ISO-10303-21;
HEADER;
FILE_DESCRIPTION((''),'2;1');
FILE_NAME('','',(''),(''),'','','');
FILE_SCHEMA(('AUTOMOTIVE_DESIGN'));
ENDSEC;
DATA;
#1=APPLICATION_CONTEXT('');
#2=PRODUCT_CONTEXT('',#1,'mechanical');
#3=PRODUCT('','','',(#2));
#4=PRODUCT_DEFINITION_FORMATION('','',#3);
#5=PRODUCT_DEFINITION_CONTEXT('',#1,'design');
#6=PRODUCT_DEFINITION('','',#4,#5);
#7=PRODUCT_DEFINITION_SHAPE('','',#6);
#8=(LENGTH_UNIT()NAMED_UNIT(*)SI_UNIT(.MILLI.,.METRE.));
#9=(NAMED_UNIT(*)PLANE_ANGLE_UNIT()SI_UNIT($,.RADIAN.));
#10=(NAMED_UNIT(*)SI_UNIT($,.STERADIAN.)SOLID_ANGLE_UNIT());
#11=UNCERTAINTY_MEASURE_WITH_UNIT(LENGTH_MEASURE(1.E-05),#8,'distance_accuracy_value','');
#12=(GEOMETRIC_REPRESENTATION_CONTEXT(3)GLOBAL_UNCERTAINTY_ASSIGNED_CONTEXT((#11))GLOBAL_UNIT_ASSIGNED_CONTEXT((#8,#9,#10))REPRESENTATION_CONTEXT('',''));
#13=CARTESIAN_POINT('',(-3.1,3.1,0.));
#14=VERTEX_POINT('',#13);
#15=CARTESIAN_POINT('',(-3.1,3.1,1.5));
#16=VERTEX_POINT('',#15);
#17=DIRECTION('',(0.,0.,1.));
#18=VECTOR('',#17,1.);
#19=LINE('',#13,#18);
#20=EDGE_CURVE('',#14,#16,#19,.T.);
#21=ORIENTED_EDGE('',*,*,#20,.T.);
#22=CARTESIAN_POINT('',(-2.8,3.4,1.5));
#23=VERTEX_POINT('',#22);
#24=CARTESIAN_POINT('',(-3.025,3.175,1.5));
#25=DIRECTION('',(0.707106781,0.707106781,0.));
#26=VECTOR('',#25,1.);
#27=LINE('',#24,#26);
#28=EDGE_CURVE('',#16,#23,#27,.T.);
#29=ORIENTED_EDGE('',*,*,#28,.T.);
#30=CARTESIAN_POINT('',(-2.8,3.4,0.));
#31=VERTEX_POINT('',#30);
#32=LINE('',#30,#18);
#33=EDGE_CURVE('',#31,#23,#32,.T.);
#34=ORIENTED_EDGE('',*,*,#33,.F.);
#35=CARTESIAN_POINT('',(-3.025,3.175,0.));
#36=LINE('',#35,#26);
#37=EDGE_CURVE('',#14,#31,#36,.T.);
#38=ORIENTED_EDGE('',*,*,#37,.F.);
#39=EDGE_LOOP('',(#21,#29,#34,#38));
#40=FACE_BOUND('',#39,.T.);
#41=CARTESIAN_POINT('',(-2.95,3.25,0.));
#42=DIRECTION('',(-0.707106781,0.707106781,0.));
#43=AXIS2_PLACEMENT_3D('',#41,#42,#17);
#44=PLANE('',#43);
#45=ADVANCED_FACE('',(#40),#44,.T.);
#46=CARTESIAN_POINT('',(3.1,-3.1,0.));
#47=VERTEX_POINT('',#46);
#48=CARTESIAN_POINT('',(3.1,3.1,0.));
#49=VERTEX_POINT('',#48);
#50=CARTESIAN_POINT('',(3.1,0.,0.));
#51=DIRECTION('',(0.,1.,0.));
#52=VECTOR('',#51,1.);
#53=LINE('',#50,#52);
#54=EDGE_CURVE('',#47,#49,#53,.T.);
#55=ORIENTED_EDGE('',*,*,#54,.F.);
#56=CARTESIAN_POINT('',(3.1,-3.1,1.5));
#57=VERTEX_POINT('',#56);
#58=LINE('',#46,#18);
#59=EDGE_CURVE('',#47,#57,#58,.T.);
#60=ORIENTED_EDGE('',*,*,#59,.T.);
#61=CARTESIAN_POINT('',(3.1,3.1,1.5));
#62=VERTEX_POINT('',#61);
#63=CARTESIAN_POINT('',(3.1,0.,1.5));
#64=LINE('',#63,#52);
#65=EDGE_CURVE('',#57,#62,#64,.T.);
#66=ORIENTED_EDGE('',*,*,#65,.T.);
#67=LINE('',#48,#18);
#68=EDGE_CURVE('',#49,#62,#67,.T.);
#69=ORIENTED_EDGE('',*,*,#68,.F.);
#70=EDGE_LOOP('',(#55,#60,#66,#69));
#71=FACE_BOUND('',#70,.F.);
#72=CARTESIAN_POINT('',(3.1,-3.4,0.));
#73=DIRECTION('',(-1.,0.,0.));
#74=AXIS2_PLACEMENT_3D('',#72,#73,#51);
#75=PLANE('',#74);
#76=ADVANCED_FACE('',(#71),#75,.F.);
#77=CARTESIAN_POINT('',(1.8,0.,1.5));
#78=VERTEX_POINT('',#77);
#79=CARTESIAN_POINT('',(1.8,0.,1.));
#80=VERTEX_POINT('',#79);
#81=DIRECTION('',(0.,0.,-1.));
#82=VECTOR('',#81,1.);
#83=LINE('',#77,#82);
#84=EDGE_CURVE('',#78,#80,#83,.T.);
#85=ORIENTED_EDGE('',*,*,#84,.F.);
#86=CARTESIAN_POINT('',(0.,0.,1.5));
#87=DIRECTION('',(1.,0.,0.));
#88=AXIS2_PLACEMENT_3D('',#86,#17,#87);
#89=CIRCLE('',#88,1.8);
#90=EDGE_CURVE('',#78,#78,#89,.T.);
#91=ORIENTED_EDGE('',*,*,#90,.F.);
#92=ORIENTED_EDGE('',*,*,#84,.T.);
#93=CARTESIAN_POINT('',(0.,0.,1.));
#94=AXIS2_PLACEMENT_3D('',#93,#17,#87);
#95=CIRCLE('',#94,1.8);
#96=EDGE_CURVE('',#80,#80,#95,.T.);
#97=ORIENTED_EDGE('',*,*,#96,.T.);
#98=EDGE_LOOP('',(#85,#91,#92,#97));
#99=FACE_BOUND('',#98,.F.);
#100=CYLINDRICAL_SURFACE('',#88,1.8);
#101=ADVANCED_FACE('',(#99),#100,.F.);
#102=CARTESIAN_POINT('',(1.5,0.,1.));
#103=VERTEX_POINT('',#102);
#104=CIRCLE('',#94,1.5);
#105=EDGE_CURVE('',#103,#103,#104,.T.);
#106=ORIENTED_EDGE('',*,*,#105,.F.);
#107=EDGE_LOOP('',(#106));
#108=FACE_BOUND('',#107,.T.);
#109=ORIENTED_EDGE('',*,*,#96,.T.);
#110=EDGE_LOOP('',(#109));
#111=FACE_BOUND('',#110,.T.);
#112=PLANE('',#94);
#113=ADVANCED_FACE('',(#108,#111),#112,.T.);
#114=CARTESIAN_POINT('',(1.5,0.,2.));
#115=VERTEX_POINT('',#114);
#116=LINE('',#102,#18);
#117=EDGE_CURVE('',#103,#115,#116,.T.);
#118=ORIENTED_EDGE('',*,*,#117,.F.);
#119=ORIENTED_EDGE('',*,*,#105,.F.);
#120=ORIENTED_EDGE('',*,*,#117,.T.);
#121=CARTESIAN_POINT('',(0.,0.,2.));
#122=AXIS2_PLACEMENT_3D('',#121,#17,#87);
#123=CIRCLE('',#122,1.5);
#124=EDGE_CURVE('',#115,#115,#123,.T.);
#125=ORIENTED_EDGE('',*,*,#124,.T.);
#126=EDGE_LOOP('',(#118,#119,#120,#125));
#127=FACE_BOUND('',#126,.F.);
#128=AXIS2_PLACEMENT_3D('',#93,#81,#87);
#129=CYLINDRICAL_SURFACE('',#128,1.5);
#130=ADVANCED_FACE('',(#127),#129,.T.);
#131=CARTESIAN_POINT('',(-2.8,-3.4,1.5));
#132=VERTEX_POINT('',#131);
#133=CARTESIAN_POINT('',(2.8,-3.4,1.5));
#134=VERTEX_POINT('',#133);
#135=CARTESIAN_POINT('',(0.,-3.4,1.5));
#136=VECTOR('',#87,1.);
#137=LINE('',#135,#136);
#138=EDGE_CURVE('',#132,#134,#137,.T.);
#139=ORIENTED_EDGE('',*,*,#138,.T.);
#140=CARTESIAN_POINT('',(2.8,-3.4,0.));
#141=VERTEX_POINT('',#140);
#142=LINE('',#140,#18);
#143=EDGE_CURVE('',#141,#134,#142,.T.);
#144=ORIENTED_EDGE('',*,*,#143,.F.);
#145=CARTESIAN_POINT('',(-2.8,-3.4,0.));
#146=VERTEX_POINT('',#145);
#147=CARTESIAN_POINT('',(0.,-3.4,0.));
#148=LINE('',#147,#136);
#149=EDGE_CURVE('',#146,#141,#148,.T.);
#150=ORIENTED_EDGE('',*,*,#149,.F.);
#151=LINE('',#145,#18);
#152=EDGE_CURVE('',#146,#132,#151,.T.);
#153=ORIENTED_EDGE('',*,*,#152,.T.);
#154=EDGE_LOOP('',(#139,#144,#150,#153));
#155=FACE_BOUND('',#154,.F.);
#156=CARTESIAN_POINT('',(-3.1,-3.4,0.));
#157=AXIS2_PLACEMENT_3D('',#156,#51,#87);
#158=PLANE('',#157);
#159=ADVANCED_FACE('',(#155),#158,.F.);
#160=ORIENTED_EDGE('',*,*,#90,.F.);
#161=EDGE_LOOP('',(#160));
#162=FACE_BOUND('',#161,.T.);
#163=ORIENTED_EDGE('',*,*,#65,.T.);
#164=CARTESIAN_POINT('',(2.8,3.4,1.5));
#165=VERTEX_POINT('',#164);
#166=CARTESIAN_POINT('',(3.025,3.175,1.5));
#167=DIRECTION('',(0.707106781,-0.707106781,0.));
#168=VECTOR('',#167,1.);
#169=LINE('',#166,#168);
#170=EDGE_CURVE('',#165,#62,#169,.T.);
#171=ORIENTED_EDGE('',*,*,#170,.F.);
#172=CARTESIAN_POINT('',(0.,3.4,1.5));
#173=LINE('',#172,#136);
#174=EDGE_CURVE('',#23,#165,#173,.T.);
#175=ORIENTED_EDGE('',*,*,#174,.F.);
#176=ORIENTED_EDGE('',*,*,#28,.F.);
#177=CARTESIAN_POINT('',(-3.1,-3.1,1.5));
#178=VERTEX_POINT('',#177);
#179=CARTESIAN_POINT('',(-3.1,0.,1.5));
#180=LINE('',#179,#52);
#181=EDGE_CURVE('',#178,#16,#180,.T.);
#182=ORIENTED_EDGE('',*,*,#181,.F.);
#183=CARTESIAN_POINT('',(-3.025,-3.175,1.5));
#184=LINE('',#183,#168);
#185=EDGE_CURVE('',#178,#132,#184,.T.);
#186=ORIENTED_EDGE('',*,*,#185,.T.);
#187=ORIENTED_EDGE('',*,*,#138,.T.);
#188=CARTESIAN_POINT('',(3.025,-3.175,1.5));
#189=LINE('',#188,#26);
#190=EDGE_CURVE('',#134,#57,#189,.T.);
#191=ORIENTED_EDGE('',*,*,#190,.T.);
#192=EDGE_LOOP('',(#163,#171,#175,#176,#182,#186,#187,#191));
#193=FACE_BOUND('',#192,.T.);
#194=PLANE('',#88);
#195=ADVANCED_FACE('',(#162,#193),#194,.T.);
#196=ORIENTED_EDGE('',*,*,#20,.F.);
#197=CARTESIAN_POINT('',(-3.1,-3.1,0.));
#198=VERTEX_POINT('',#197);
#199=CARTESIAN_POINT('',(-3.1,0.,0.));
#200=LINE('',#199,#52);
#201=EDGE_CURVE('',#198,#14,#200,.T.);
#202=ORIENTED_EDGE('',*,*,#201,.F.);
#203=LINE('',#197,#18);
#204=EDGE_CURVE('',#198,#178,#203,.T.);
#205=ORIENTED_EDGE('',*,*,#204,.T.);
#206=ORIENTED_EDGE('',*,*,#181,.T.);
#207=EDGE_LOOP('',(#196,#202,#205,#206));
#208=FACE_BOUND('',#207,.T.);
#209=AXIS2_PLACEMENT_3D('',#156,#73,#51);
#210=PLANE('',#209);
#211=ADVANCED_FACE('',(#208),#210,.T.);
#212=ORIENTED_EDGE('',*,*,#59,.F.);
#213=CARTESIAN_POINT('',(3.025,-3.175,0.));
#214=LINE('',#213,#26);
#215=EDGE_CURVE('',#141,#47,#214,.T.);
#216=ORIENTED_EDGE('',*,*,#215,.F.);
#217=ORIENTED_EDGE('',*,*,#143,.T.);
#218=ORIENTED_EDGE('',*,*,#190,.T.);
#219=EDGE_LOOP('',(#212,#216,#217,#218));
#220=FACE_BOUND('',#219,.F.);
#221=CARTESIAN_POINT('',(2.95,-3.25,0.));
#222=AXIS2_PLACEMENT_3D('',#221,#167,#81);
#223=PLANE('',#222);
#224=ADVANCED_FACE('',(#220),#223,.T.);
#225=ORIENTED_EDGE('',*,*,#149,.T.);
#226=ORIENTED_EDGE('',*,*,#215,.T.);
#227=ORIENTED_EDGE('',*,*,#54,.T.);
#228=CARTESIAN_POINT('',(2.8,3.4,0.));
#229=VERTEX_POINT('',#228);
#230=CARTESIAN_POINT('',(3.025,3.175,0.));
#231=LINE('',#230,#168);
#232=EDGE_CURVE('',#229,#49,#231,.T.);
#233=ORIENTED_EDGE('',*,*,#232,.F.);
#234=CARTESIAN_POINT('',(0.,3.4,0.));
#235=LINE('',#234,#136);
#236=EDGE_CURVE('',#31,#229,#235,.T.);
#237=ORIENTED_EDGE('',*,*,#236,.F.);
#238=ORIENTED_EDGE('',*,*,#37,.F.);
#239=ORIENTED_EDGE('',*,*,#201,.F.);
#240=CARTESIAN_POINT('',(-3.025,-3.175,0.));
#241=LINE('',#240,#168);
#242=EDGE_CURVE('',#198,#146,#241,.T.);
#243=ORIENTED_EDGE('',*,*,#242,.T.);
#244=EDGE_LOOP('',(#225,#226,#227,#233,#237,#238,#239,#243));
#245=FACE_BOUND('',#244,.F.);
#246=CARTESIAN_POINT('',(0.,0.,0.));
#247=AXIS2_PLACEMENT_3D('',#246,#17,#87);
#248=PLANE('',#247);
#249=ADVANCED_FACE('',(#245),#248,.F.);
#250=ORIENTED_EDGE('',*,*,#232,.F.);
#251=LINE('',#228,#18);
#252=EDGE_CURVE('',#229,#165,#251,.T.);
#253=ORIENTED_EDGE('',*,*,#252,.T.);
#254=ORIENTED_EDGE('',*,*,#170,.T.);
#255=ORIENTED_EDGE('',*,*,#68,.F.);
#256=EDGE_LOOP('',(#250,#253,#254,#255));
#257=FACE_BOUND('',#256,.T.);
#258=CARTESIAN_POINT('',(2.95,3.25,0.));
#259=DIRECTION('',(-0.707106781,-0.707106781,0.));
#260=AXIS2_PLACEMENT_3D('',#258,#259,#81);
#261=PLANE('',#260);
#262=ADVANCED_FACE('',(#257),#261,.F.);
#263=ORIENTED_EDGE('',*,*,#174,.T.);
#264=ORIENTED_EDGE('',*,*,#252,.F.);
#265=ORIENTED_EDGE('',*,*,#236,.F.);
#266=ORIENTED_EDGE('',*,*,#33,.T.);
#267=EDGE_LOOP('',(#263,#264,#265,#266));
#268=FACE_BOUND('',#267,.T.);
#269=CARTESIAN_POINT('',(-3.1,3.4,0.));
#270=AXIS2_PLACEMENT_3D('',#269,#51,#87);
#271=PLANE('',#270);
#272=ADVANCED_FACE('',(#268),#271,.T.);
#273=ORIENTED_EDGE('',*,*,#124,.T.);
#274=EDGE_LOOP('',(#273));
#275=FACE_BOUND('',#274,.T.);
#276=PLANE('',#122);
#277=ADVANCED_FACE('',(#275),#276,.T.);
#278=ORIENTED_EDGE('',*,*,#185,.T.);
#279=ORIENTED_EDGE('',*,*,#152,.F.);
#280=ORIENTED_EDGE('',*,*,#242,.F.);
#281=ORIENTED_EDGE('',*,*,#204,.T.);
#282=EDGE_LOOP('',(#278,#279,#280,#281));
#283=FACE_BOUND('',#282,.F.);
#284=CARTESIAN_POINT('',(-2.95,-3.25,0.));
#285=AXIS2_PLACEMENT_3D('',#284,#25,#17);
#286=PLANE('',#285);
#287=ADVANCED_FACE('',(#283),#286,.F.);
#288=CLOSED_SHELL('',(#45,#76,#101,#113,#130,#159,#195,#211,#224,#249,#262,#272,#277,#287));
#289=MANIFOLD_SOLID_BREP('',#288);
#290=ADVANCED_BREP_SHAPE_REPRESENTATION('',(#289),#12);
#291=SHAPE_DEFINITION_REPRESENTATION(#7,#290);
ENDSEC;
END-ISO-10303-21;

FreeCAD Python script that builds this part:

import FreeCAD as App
import Part
import Sketcher
from FreeCAD import Vector
Q = App.Units.Quantity


def edges_at(feature, points):
    """Names of the edges that pass closest to the given points."""
    edges = feature.Shape.Edges
    near = lambda p: min(range(len(edges)), key=lambda i: edges[i].distToShape(Part.Vertex(*p))[0])
    return sorted({f"Edge{near(p) + 1}" for p in points})

doc = App.newDocument("Part")
params = doc.addObject("Spreadsheet::Sheet", "Params")
for row, (alias, value) in enumerate([
    ("sketch1_width", "6.2 mm"),
    ("sketch1_height", "6.8 mm"),
    ("pad1_length", "1.5 mm"),
    ("sketch2_diameter", "3.6 mm"),
    ("pocket1_length", "0.5 mm"),
    ("sketch3_diameter", "3 mm"),
    ("pad2_length", "1 mm"),
    ("chamfer_size", "0.3 mm"),
], start=1):
    params.set(f"A{row}", alias)
    params.set(f"B{row}", "=" + value)
    params.setAlias(f"B{row}", alias)

body = doc.addObject("PartDesign::Body", "Body")

sketch1 = body.newObject("Sketcher::SketchObject", "Sketch")
sketch1.AttachmentSupport = (doc.getObject("XY_Plane"), [""])
sketch1.MapMode = "FlatFace"
sketch1.addGeometry(Part.LineSegment(Vector(-3, 3, 0), Vector(-3, -3, 0)), False)
sketch1.addGeometry(Part.LineSegment(Vector(-3, -3, 0), Vector(3, -3, 0)), False)
sketch1.addGeometry(Part.LineSegment(Vector(3, -3, 0), Vector(3, 3, 0)), False)
sketch1.addGeometry(Part.LineSegment(Vector(3, 3, 0), Vector(-3, 3, 0)), False)
sketch1.addConstraint(Sketcher.Constraint("Coincident", 0, 2, 1, 1))
sketch1.addConstraint(Sketcher.Constraint("Coincident", 1, 2, 2, 1))
sketch1.addConstraint(Sketcher.Constraint("Coincident", 2, 2, 3, 1))
sketch1.addConstraint(Sketcher.Constraint("Coincident", 3, 2, 0, 1))
sketch1.addConstraint(Sketcher.Constraint("Vertical", 0))
sketch1.addConstraint(Sketcher.Constraint("Horizontal", 1))
sketch1.addConstraint(Sketcher.Constraint("Vertical", 2))
sketch1.addConstraint(Sketcher.Constraint("Horizontal", 3))
sketch1.addConstraint(Sketcher.Constraint("Symmetric", 0, 2, 2, 2, -1, 1))
sketch1.addConstraint(Sketcher.Constraint("DistanceX", 1, 1, 1, 2, Q("6.2 mm")))
sketch1.addConstraint(Sketcher.Constraint("DistanceY", 0, 2, 0, 1, Q("6.8 mm")))
sketch1.setExpression("Constraints[9]", "Params.sketch1_width")
sketch1.setExpression("Constraints[10]", "Params.sketch1_height")
pad1 = body.newObject("PartDesign::Pad", "Pad")
pad1.Profile = sketch1
pad1.setExpression("Length", "Params.pad1_length")

sketch2 = body.newObject("Sketcher::SketchObject", "Sketch001")
sketch2.AttachmentSupport = (doc.getObject("XY_Plane"), [""])
sketch2.MapMode = "FlatFace"
sketch2.AttachmentOffset = App.Placement(Vector(0, 0, 1.5), App.Rotation())
sketch2.addGeometry(Part.Circle(Vector(0, 0, 0), Vector(0, 0, 1), 1.8), False)
sketch2.addConstraint(Sketcher.Constraint("Coincident", 0, 3, -1, 1))
sketch2.addConstraint(Sketcher.Constraint("Diameter", 0, Q("3.6 mm")))
sketch2.setExpression("Constraints[1]", "Params.sketch2_diameter")
pocket1 = body.newObject("PartDesign::Pocket", "Pocket")
pocket1.Profile = sketch2
pocket1.setExpression("Length", "Params.pocket1_length")

sketch3 = body.newObject("Sketcher::SketchObject", "Sketch002")
sketch3.AttachmentSupport = (doc.getObject("XY_Plane"), [""])
sketch3.MapMode = "FlatFace"
sketch3.AttachmentOffset = App.Placement(Vector(0, 0, 1), App.Rotation())
sketch3.addGeometry(Part.Circle(Vector(0, 0, 0), Vector(0, 0, 1), 1.5), False)
sketch3.addConstraint(Sketcher.Constraint("Coincident", 0, 3, -1, 1))
sketch3.addConstraint(Sketcher.Constraint("Diameter", 0, Q("3 mm")))
sketch3.setExpression("Constraints[1]", "Params.sketch3_diameter")
pad2 = body.newObject("PartDesign::Pad", "Pad001")
pad2.Profile = sketch3
pad2.setExpression("Length", "Params.pad2_length")
doc.recompute()

chamfer = body.newObject("PartDesign::Chamfer", "Chamfer")
chamfer.Base = (pad2, edges_at(pad2, [
    (-3.1, -3.4, 0.75),
    (3.1, -3.4, 0.75),
    (3.1, 3.4, 0.75),
    (-3.1, 3.4, 0.75),
]))
chamfer.setExpression("Size", "Params.chamfer_size")

doc.recompute()
